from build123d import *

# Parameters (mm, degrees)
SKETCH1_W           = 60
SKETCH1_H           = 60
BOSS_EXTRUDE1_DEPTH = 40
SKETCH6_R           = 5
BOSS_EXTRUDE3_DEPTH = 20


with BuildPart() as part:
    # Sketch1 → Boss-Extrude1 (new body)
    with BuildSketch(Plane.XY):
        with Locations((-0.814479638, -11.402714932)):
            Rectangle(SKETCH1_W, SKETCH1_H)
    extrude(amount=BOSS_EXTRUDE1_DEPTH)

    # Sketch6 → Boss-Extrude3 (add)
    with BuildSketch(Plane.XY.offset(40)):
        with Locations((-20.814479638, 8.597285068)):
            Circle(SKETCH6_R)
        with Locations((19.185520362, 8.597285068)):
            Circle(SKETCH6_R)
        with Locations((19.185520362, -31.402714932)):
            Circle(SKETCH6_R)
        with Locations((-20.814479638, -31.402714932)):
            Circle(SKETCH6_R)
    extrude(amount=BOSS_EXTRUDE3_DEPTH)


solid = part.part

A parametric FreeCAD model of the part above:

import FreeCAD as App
import Part
import Sketcher

doc = App.newDocument("Part")
body = doc.addObject("PartDesign::Body", "Body")

# Sketch on XY plane
sketch1 = doc.addObject("Sketcher::SketchObject", "Sketch")
body.addObject(sketch1)
sketch1.AttachmentSupport = (doc.XY_Plane, [""])
sketch1.MapMode = "FlatFace"
sketch1.addGeometry([
    Part.LineSegment(App.Vector(-31, 19, 0), App.Vector(-31, -41, 0)),
    Part.LineSegment(App.Vector(-31, -41, 0), App.Vector(29, -41, 0)),
    Part.LineSegment(App.Vector(29, -41, 0), App.Vector(29, 19, 0)),
    Part.LineSegment(App.Vector(29, 19, 0), App.Vector(-31, 19, 0)),
], False)
sketch1.addConstraint([
    Sketcher.Constraint("Coincident", 0, 2, 1, 1),
    Sketcher.Constraint("Coincident", 1, 2, 2, 1),
    Sketcher.Constraint("Coincident", 2, 2, 3, 1),
    Sketcher.Constraint("Coincident", 3, 2, 0, 1),
    Sketcher.Constraint("Vertical", 0),
    Sketcher.Constraint("Horizontal", 1),
    Sketcher.Constraint("Vertical", 2),
    Sketcher.Constraint("Horizontal", 3),
    Sketcher.Constraint("Equal", 3, 0),
    Sketcher.Constraint("DistanceX", 1, 1, 1, 2, 60.0),
    Sketcher.Constraint("DistanceX", 0, 2, -1, 1, 30.81448),
    Sketcher.Constraint("DistanceY", 0, 2, -1, 1, 41.402715),
])
pad1 = doc.addObject("PartDesign::Pad", "Pad")
body.addObject(pad1)
pad1.Profile = sketch1
pad1.Length = 40

# Sketch on XY plane
sketch2 = doc.addObject("Sketcher::SketchObject", "Sketch001")
body.addObject(sketch2)
sketch2.AttachmentSupport = (doc.XY_Plane, [""])
sketch2.MapMode = "FlatFace"
sketch2.AttachmentOffset = App.Placement(App.Vector(0, 0, 40), App.Rotation())
sketch2.addGeometry([
    Part.Circle(App.Vector(-21, 9, 0), App.Vector(0, 0, 1), 5),
    Part.Circle(App.Vector(19, 9, 0), App.Vector(0, 0, 1), 5),
    Part.Circle(App.Vector(19, -31, 0), App.Vector(0, 0, 1), 5),
    Part.Circle(App.Vector(-21, -31, 0), App.Vector(0, 0, 1), 5),
], False)
sketch2.addConstraint([
    Sketcher.Constraint("Equal", 0, 1),
    Sketcher.Constraint("Equal", 1, 2),
    Sketcher.Constraint("Equal", 2, 3),
    Sketcher.Constraint("Horizontal", 0, 3, 1, 3),
    Sketcher.Constraint("Horizontal", 2, 3, 3, 3),
    Sketcher.Constraint("Vertical", 1, 3, 2, 3),
    Sketcher.Constraint("Vertical", 0, 3, 3, 3),
    Sketcher.Constraint("Diameter", 0, 10.0),
    Sketcher.Constraint("DistanceX", 0, 3, 1, 3, 40.0),
    Sketcher.Constraint("DistanceY", 2, 3, 1, 3, 40.0),
    Sketcher.Constraint("DistanceX", 0, 3, -1, 1, 20.81448),
    Sketcher.Constraint("DistanceY", -1, 1, 0, 3, 8.597285),
])
pad2 = doc.addObject("PartDesign::Pad", "Pad001")
body.addObject(pad2)
pad2.Profile = sketch2
pad2.Length = 20

doc.recompute()
